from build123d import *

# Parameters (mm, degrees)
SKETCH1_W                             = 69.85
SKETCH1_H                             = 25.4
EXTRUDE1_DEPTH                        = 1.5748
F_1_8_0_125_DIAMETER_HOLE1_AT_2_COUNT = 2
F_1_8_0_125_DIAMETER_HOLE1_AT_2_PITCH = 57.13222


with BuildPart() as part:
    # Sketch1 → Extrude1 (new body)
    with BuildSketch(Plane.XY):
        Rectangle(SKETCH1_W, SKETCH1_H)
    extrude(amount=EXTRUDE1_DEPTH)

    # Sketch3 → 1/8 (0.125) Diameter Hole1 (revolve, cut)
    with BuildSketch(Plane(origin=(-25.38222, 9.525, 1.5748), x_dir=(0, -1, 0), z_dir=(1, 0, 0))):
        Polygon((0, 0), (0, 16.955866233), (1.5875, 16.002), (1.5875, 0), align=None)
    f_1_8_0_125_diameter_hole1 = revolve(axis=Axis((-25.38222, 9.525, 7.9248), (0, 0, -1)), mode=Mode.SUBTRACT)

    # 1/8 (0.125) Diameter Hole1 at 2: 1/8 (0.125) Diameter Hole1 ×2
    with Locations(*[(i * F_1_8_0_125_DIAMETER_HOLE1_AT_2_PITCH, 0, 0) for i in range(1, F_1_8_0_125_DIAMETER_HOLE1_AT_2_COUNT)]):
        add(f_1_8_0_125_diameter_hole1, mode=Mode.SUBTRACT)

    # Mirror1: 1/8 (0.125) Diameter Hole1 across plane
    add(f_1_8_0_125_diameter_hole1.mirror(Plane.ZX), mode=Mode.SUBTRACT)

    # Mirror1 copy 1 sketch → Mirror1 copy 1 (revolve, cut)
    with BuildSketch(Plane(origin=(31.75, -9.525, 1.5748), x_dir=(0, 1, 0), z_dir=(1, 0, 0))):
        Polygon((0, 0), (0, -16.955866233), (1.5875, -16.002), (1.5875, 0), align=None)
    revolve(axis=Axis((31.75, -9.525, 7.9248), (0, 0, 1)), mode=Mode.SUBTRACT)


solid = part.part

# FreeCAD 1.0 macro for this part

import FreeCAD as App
import Part
import Sketcher

V = App.Vector
Q = App.Units.Quantity


def add_polygon(sketch, points):
    """Adds a closed chain of lines whose ends are joined by coincident constraints."""
    first, n = sketch.GeometryCount, len(points)
    for a, b in zip(points, points[1:] + points[:1]):
        sketch.addGeometry(Part.LineSegment(App.Vector(*a, 0), App.Vector(*b, 0)), False)
    for i in range(n):
        sketch.addConstraint(Sketcher.Constraint("Coincident", first + i, 2, first + (i + 1) % n, 1))

doc = App.newDocument("Part")
body = doc.addObject("PartDesign::Body", "Body")

sketch1 = body.newObject("Sketcher::SketchObject", "Sketch")
sketch1.AttachmentSupport = (doc.getObject("XY_Plane"), [""])
sketch1.MapMode = "FlatFace"
add_polygon(sketch1, [(-35, 13), (-35, -13), (35, -13), (35, 13)])
sketch1.addConstraint([
    Sketcher.Constraint("Vertical", 0),
    Sketcher.Constraint("Horizontal", 1),
    Sketcher.Constraint("Vertical", 2),
    Sketcher.Constraint("Horizontal", 3),
    Sketcher.Constraint("Symmetric", 0, 2, 2, 2, -1, 1),
    Sketcher.Constraint("DistanceY", 0, 2, 0, 1, Q("1 in")),
    Sketcher.Constraint("DistanceX", 1, 1, 1, 2, Q("2.75 in")),
])
pad1 = body.newObject("PartDesign::Pad", "Pad")
pad1.Profile = sketch1
pad1.Length = Q("0.062 in")

sketch2 = body.newObject("Sketcher::SketchObject", "Sketch001")
sketch2.AttachmentSupport = (doc.getObject("YZ_Plane"), [""])
sketch2.MapMode = "FlatFace"
sketch2.AttachmentOffset = App.Placement(V(0, 0, -0.9993 * 25.4), App.Rotation())
add_polygon(sketch2, [(9.5, -15.4), (9.5, 1.6), (7.9, 1.6), (7.9, -14.4)])
sketch2.addGeometry(Part.LineSegment(V(9.5, 1.6, 0), V(9.5, -15.4, 0)), True)
sketch2.addConstraint([
    Sketcher.Constraint("Vertical", 0),
    Sketcher.Constraint("Horizontal", 1),
    Sketcher.Constraint("Vertical", 2),
    Sketcher.Constraint("Vertical", 4),
    Sketcher.Constraint("Coincident", 4, 1, 0, 2),
    Sketcher.Constraint("Equal", 0, 4),
    Sketcher.Constraint("Angle", 3, Q("-31 deg")),
    Sketcher.Constraint("DistanceY", 2, 2, 2, 1, Q("0.63 in")),
    Sketcher.Constraint("DistanceX", 1, 2, 1, 1, Q("0.0625 in")),
    Sketcher.Constraint("DistanceX", -1, 1, 0, 2, Q("0.375 in")),
    Sketcher.Constraint("DistanceY", -1, 1, 0, 2, Q("0.062 in")),
])
groove = body.newObject("PartDesign::Groove", "Groove")
groove.Profile = sketch2
groove.ReferenceAxis = (sketch2, ["Axis0"])
groove.Angle = 360
doc.recompute()

linearpattern = body.newObject("PartDesign::LinearPattern", "LinearPattern")
linearpattern.Originals = [groove]
linearpattern.Direction = (doc.getObject("X_Axis"), [""])
linearpattern.Mode = "offset"
linearpattern.Offset = Q("2.2493 in")
linearpattern.Occurrences = 2
body.Tip = linearpattern
doc.recompute()

mirrored = body.newObject("PartDesign::Mirrored", "Mirrored")
mirrored.Originals = [groove]
mirrored.MirrorPlane = (doc.getObject("XZ_Plane"), [""])
body.Tip = mirrored

sketch3 = body.newObject("Sketcher::SketchObject", "Sketch002")
sketch3.AttachmentSupport = (doc.getObject("YZ_Plane"), [""])
sketch3.MapMode = "FlatFace"
sketch3.AttachmentOffset = App.Placement(V(0, 0, 1.25 * 25.4), App.Rotation())
add_polygon(sketch3, [(-9.5, 1.6), (-9.5, -15.4), (-7.9, -14.4), (-7.9, 1.6)])
sketch3.addGeometry(Part.LineSegment(V(-9.5, -15.4, 0), V(-9.5, 1.6, 0)), True)
sketch3.addConstraint([
    Sketcher.Constraint("Vertical", 0),
    Sketcher.Constraint("Vertical", 2),
    Sketcher.Constraint("Horizontal", 3),
    Sketcher.Constraint("Vertical", 4),
    Sketcher.Constraint("Coincident", 4, 1, 0, 2),
    Sketcher.Constraint("Horizontal", 2, 2, 4, 2),
    Sketcher.Constraint("Angle", 1, Q("31 deg")),
    Sketcher.Constraint("DistanceY", 2, 1, 2, 2, Q("0.63 in")),
    Sketcher.Constraint("DistanceX", 3, 2, 3, 1, Q("0.0625 in")),
    Sketcher.Constraint("DistanceX", 0, 2, -1, 1, Q("0.375 in")),
    Sketcher.Constraint("DistanceY", 1, 2, -1, 1, Q("0.568 in")),
])
groove2 = body.newObject("PartDesign::Groove", "Groove001")
groove2.Profile = sketch3
groove2.ReferenceAxis = (sketch3, ["Axis0"])
groove2.Angle = 360

doc.recompute()
